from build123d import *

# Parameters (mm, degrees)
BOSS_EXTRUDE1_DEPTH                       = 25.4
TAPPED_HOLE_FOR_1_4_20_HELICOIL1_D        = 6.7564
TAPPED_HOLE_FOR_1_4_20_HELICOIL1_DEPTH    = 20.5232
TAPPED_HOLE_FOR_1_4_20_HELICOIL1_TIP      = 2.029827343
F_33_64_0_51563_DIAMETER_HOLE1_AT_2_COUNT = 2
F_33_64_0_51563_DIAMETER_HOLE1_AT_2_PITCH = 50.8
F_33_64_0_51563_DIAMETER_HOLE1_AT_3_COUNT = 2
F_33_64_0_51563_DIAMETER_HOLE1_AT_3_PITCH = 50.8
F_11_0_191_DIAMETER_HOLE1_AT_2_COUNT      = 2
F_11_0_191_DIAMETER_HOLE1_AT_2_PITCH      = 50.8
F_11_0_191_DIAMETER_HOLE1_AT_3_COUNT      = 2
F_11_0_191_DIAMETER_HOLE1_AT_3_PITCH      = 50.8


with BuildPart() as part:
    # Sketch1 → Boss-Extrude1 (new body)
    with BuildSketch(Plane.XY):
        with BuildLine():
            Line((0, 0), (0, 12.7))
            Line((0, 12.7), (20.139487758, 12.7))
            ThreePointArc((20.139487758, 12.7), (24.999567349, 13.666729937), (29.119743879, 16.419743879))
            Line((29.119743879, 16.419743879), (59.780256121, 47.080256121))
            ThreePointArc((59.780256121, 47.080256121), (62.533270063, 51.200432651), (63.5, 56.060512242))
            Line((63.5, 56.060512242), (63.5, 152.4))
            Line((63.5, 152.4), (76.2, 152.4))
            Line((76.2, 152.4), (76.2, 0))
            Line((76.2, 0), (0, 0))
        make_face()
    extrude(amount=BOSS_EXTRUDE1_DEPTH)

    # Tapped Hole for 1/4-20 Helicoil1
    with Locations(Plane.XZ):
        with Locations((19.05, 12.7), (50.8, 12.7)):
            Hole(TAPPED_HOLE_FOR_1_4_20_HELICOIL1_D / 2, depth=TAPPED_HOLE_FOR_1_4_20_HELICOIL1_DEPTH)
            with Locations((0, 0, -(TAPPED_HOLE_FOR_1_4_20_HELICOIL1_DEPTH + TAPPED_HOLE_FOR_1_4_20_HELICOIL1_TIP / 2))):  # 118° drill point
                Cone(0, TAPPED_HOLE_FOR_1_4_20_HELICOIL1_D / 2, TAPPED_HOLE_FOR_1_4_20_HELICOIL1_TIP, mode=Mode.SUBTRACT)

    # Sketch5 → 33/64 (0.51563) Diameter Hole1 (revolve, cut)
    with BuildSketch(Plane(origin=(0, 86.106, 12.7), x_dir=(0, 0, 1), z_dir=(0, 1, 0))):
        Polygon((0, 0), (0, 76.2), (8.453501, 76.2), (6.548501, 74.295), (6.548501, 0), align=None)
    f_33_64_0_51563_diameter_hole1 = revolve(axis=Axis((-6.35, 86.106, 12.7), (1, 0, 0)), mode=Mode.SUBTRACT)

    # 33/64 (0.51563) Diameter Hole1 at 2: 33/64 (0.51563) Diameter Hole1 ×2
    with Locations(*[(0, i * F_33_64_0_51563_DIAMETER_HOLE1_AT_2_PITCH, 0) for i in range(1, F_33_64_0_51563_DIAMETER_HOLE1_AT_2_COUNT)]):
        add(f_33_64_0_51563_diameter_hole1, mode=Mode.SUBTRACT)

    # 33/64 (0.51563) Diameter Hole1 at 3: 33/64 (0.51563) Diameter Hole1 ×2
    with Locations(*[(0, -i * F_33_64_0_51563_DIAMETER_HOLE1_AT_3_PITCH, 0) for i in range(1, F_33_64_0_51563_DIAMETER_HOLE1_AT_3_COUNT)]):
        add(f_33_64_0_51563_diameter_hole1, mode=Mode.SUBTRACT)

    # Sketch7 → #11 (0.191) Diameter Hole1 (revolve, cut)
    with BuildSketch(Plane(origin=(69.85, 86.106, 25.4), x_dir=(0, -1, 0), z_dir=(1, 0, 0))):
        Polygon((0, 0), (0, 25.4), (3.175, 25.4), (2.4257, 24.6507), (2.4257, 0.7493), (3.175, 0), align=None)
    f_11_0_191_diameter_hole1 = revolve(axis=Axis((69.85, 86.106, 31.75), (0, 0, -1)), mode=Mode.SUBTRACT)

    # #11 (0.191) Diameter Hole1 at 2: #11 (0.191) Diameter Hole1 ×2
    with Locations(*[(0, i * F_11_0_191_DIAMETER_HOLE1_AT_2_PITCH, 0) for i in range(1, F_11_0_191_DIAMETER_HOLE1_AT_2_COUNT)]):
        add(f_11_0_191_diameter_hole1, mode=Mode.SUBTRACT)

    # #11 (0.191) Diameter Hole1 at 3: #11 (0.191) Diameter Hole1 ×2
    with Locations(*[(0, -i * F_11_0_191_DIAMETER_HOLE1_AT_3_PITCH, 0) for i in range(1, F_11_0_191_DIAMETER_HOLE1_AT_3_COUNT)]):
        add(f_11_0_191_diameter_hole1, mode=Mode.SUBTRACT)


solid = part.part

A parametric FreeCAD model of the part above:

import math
import FreeCAD as App
import Part
import Sketcher
Q = App.Units.Quantity

doc = App.newDocument("Part")
params = doc.addObject("Spreadsheet::Sheet", "Params")
for row, (alias, value) in enumerate([
    ("sketch1_radius", "0.5 in"),
    ("sketch1_width", "3 in"),
    ("sketch1_height", "6 in"),
    ("sketch1_width2", "0.5 in"),
    ("pad1_length", "1 in"),
    ("sketch2_diameter", "0.266 in"),
    ("hole_diameter", "0.266 in"),
    ("hole_depth", "0.808 in"),
    ("sketch3_width", "3 in"),
    ("sketch3_width2", "2.925 in"),
    ("groove_angle", "360 deg"),
    ("linearpattern_pitch", "2 in"),
    ("linearpattern2_pitch", "2 in"),
    ("sketch4_height", "1 in"),
    ("sketch4_width", "0.125 in"),
    ("sketch4_height2", "0.941 in"),
    ("groove2_angle", "360 deg"),
    ("linearpattern3_pitch", "2 in"),
    ("linearpattern4_pitch", "2 in"),
], start=1):
    params.set(f"A{row}", alias)
    params.set(f"B{row}", "=" + value)
    params.setAlias(f"B{row}", alias)

body = doc.addObject("PartDesign::Body", "Body")

sketch1 = doc.addObject("Sketcher::SketchObject", "Sketch")
body.addObject(sketch1)
sketch1.AttachmentSupport = (doc.XY_Plane, [""])
sketch1.MapMode = "FlatFace"
sketch1.addGeometry(Part.LineSegment(App.Vector(0, 12.7, 0), App.Vector(0, 0, 0)), False)
sketch1.addGeometry(Part.LineSegment(App.Vector(0, 0, 0), App.Vector(76.2, 0, 0)), False)
sketch1.addGeometry(Part.LineSegment(App.Vector(76.2, 0, 0), App.Vector(76.2, 152.4, 0)), False)
sketch1.addGeometry(Part.LineSegment(App.Vector(76.2, 152.4, 0), App.Vector(63.5, 152.4, 0)), False)
sketch1.addGeometry(Part.LineSegment(App.Vector(63.5, 152.4, 0), App.Vector(63.5, 56.060512, 0)), False)
sketch1.addGeometry(Part.ArcOfCircle(Part.Circle(App.Vector(50.8, 56.060512, 0), App.Vector(0, 0, 1), 12.7), math.radians(-45), math.radians(0)), False)
sketch1.addGeometry(Part.LineSegment(App.Vector(59.780256, 47.080256, 0), App.Vector(29.119744, 16.419744, 0)), False)
sketch1.addGeometry(Part.ArcOfCircle(Part.Circle(App.Vector(20.139488, 25.4, 0), App.Vector(0, 0, 1), 12.7), math.radians(-90), math.radians(-45)), False)
sketch1.addGeometry(Part.LineSegment(App.Vector(20.139488, 12.7, 0), App.Vector(0, 12.7, 0)), False)
sketch1.addConstraint(Sketcher.Constraint("Coincident", 0, 2, 1, 1))
sketch1.addConstraint(Sketcher.Constraint("Coincident", 1, 2, 2, 1))
sketch1.addConstraint(Sketcher.Constraint("Coincident", 2, 2, 3, 1))
sketch1.addConstraint(Sketcher.Constraint("Coincident", 3, 2, 4, 1))
sketch1.addConstraint(Sketcher.Constraint("Tangent", 4, 2, 5, 2))
sketch1.addConstraint(Sketcher.Constraint("Tangent", 5, 1, 6, 1))
sketch1.addConstraint(Sketcher.Constraint("Tangent", 6, 2, 7, 2))
sketch1.addConstraint(Sketcher.Constraint("Tangent", 7, 1, 8, 1))
sketch1.addConstraint(Sketcher.Constraint("Coincident", 8, 2, 0, 1))
sketch1.addConstraint(Sketcher.Constraint("Vertical", 0))
sketch1.addConstraint(Sketcher.Constraint("Horizontal", 1))
sketch1.addConstraint(Sketcher.Constraint("Vertical", 2))
sketch1.addConstraint(Sketcher.Constraint("Horizontal", 3))
sketch1.addConstraint(Sketcher.Constraint("Vertical", 4))
sketch1.addConstraint(Sketcher.Constraint("Horizontal", 8))
sketch1.addConstraint(Sketcher.Constraint("Coincident", 0, 2, -1, 1))
sketch1.addConstraint(Sketcher.Constraint("Equal", 5, 7))
sketch1.addConstraint(Sketcher.Constraint("Equal", 3, 0))
sketch1.addConstraint(Sketcher.Constraint("Radius", 5, Q("0.5 in")))
sketch1.addConstraint(Sketcher.Constraint("DistanceX", 1, 1, 1, 2, Q("3 in")))
sketch1.addConstraint(Sketcher.Constraint("DistanceY", 2, 1, 2, 2, Q("6 in")))
sketch1.addConstraint(Sketcher.Constraint("DistanceX", 3, 2, 3, 1, Q("0.5 in")))
sketch1.addConstraint(Sketcher.Constraint("Angle", 6, Q("-135 deg")))
sketch1.addConstraint(Sketcher.Constraint("DistanceX", 8, 2, 8, 1, Q("20.139488 mm")))
sketch1.setExpression("Constraints[18]", "Params.sketch1_radius")
sketch1.setExpression("Constraints[19]", "Params.sketch1_width")
sketch1.setExpression("Constraints[20]", "Params.sketch1_height")
sketch1.setExpression("Constraints[21]", "Params.sketch1_width2")
pad1 = doc.addObject("PartDesign::Pad", "Pad")
body.addObject(pad1)
pad1.Profile = sketch1
pad1.setExpression("Length", "Params.pad1_length")

sketch2 = doc.addObject("Sketcher::SketchObject", "Sketch001")
body.addObject(sketch2)
sketch2.AttachmentSupport = (doc.XZ_Plane, [""])
sketch2.MapMode = "FlatFace"
sketch2.addGeometry(Part.Circle(App.Vector(19.05, 12.7, 0), App.Vector(0, 0, 1), 3.3782), False)
sketch2.addGeometry(Part.Circle(App.Vector(50.8, 12.7, 0), App.Vector(0, 0, 1), 3.3782), False)
sketch2.addConstraint(Sketcher.Constraint("Equal", 0, 1))
sketch2.addConstraint(Sketcher.Constraint("Horizontal", 0, 3, 1, 3))
sketch2.addConstraint(Sketcher.Constraint("Diameter", 0, Q("0.266 in")))
sketch2.addConstraint(Sketcher.Constraint("DistanceX", -1, 1, 1, 3, Q("2 in")))
sketch2.addConstraint(Sketcher.Constraint("DistanceY", -1, 1, 0, 3, Q("0.5 in")))
sketch2.addConstraint(Sketcher.Constraint("DistanceX", -1, 1, 0, 3, Q("0.75 in")))
sketch2.setExpression("Constraints[2]", "Params.sketch2_diameter")
doc.recompute()
hole = doc.addObject("PartDesign::Hole", "Hole")
body.addObject(hole)
hole.Profile = sketch2
hole.ThreadType = "None"
hole.setExpression("Diameter", "Params.hole_diameter")
hole.DepthType = "Dimension"
hole.setExpression("Depth", "Params.hole_depth")
hole.DrillPoint = "Angled"
hole.DrillPointAngle = 118

sketch3 = doc.addObject("Sketcher::SketchObject", "Sketch002")
body.addObject(sketch3)
sketch3.AttachmentSupport = (doc.XZ_Plane, [""])
sketch3.MapMode = "FlatFace"
sketch3.AttachmentOffset = App.Placement(App.Vector(0, 0, -3.39 * 25.4), App.Rotation())
sketch3.addGeometry(Part.LineSegment(App.Vector(76.2, 12.7, 0), App.Vector(0, 12.7, 0)), False)
sketch3.addGeometry(Part.LineSegment(App.Vector(0, 12.7, 0), App.Vector(0, 19.248501, 0)), False)
sketch3.addGeometry(Part.LineSegment(App.Vector(0, 19.248501, 0), App.Vector(74.295, 19.248501, 0)), False)
sketch3.addGeometry(Part.LineSegment(App.Vector(74.295, 19.248501, 0), App.Vector(76.2, 21.153501, 0)), False)
sketch3.addGeometry(Part.LineSegment(App.Vector(76.2, 21.153501, 0), App.Vector(76.2, 12.7, 0)), False)
sketch3.addGeometry(Part.LineSegment(App.Vector(0, 12.7, 0), App.Vector(76.2, 12.7, 0)), True)
sketch3.addConstraint(Sketcher.Constraint("Coincident", 0, 2, 1, 1))
sketch3.addConstraint(Sketcher.Constraint("Coincident", 1, 2, 2, 1))
sketch3.addConstraint(Sketcher.Constraint("Coincident", 2, 2, 3, 1))
sketch3.addConstraint(Sketcher.Constraint("Coincident", 3, 2, 4, 1))
sketch3.addConstraint(Sketcher.Constraint("Coincident", 4, 2, 0, 1))
sketch3.addConstraint(Sketcher.Constraint("Horizontal", 0))
sketch3.addConstraint(Sketcher.Constraint("Vertical", 1))
sketch3.addConstraint(Sketcher.Constraint("Horizontal", 2))
sketch3.addConstraint(Sketcher.Constraint("Vertical", 4))
sketch3.addConstraint(Sketcher.Constraint("Horizontal", 5))
sketch3.addConstraint(Sketcher.Constraint("Coincident", 5, 1, 0, 2))
sketch3.addConstraint(Sketcher.Constraint("PointOnObject", 0, 2, -2))
sketch3.addConstraint(Sketcher.Constraint("Vertical", 3, 2, 5, 2))
sketch3.addConstraint(Sketcher.Constraint("DistanceX", 0, 2, 0, 1, Q("3 in")))
sketch3.addConstraint(Sketcher.Constraint("Angle", 3, Q("45 deg")))
sketch3.addConstraint(Sketcher.Constraint("DistanceY", -1, 1, 0, 2, Q("0.5 in")))
sketch3.addConstraint(Sketcher.Constraint("DistanceX", 2, 1, 2, 2, Q("2.925 in")))
sketch3.addConstraint(Sketcher.Constraint("DistanceY", 1, 1, 1, 2, Q("6.548501 mm")))
sketch3.setExpression("Constraints[13]", "Params.sketch3_width")
sketch3.setExpression("Constraints[16]", "Params.sketch3_width2")
groove = doc.addObject("PartDesign::Groove", "Groove")
body.addObject(groove)
groove.Profile = sketch3
groove.ReferenceAxis = (sketch3, ["Axis0"])
groove.setExpression("Angle", "Params.groove_angle")
doc.recompute()

linearpattern = doc.addObject("PartDesign::LinearPattern", "LinearPattern")
body.addObject(linearpattern)
linearpattern.Originals = [groove]
linearpattern.Direction = (doc.Y_Axis, [""])
linearpattern.Mode = "offset"
linearpattern.setExpression("Offset", "Params.linearpattern_pitch")
linearpattern.Occurrences = 2
body.Tip = linearpattern
doc.recompute()

linearpattern2 = doc.addObject("PartDesign::LinearPattern", "LinearPattern001")
body.addObject(linearpattern2)
linearpattern2.Originals = [groove]
linearpattern2.Direction = (doc.Y_Axis, [""])
linearpattern2.Mode = "offset"
linearpattern2.setExpression("Offset", "Params.linearpattern2_pitch")
linearpattern2.Occurrences = 2
linearpattern2.Reversed = True
body.Tip = linearpattern2

sketch4 = doc.addObject("Sketcher::SketchObject", "Sketch003")
body.addObject(sketch4)
sketch4.AttachmentSupport = (doc.YZ_Plane, [""])
sketch4.MapMode = "FlatFace"
sketch4.AttachmentOffset = App.Placement(App.Vector(0, 0, 2.75 * 25.4), App.Rotation())
sketch4.addGeometry(Part.LineSegment(App.Vector(86.106, 0, 0), App.Vector(86.106, 25.4, 0)), False)
sketch4.addGeometry(Part.LineSegment(App.Vector(86.106, 25.4, 0), App.Vector(82.931, 25.4, 0)), False)
sketch4.addGeometry(Part.LineSegment(App.Vector(82.931, 25.4, 0), App.Vector(83.6803, 24.6507, 0)), False)
sketch4.addGeometry(Part.LineSegment(App.Vector(83.6803, 24.6507, 0), App.Vector(83.6803, 0.7493, 0)), False)
sketch4.addGeometry(Part.LineSegment(App.Vector(83.6803, 0.7493, 0), App.Vector(82.931, 0, 0)), False)
sketch4.addGeometry(Part.LineSegment(App.Vector(82.931, 0, 0), App.Vector(86.106, 0, 0)), False)
sketch4.addGeometry(Part.LineSegment(App.Vector(86.106, 25.4, 0), App.Vector(86.106, 0, 0)), True)
sketch4.addConstraint(Sketcher.Constraint("Coincident", 0, 2, 1, 1))
sketch4.addConstraint(Sketcher.Constraint("Coincident", 1, 2, 2, 1))
sketch4.addConstraint(Sketcher.Constraint("Coincident", 2, 2, 3, 1))
sketch4.addConstraint(Sketcher.Constraint("Coincident", 3, 2, 4, 1))
sketch4.addConstraint(Sketcher.Constraint("Coincident", 4, 2, 5, 1))
sketch4.addConstraint(Sketcher.Constraint("Coincident", 5, 2, 0, 1))
sketch4.addConstraint(Sketcher.Constraint("Vertical", 0))
sketch4.addConstraint(Sketcher.Constraint("Horizontal", 1))
sketch4.addConstraint(Sketcher.Constraint("Vertical", 3))
sketch4.addConstraint(Sketcher.Constraint("Horizontal", 5))
sketch4.addConstraint(Sketcher.Constraint("Vertical", 6))
sketch4.addConstraint(Sketcher.Constraint("Coincident", 6, 1, 0, 2))
sketch4.addConstraint(Sketcher.Constraint("PointOnObject", 4, 2, -1))
sketch4.addConstraint(Sketcher.Constraint("PointOnObject", 6, 2, -1))
sketch4.addConstraint(Sketcher.Constraint("Perpendicular", 2, 4))
sketch4.addConstraint(Sketcher.Constraint("Vertical", 1, 2, 4, 2))
sketch4.addConstraint(Sketcher.Constraint("Equal", 2, 4))
sketch4.addConstraint(Sketcher.Constraint("DistanceY", 0, 1, 0, 2, Q("1 in")))
sketch4.addConstraint(Sketcher.Constraint("DistanceX", 1, 2, 1, 1, Q("0.125 in")))
sketch4.addConstraint(Sketcher.Constraint("DistanceY", 3, 2, 3, 1, Q("0.941 in")))
sketch4.addConstraint(Sketcher.Constraint("DistanceX", -1, 1, 0, 2, Q("3.39 in")))
sketch4.setExpression("Constraints[17]", "Params.sketch4_height")
sketch4.setExpression("Constraints[18]", "Params.sketch4_width")
sketch4.setExpression("Constraints[19]", "Params.sketch4_height2")
groove2 = doc.addObject("PartDesign::Groove", "Groove001")
body.addObject(groove2)
groove2.Profile = sketch4
groove2.ReferenceAxis = (sketch4, ["Axis0"])
groove2.setExpression("Angle", "Params.groove2_angle")
doc.recompute()

linearpattern3 = doc.addObject("PartDesign::LinearPattern", "LinearPattern002")
body.addObject(linearpattern3)
linearpattern3.Originals = [groove2]
linearpattern3.Direction = (doc.Y_Axis, [""])
linearpattern3.Mode = "offset"
linearpattern3.setExpression("Offset", "Params.linearpattern3_pitch")
linearpattern3.Occurrences = 2
body.Tip = linearpattern3
doc.recompute()

linearpattern4 = doc.addObject("PartDesign::LinearPattern", "LinearPattern003")
body.addObject(linearpattern4)
linearpattern4.Originals = [groove2]
linearpattern4.Direction = (doc.Y_Axis, [""])
linearpattern4.Mode = "offset"
linearpattern4.setExpression("Offset", "Params.linearpattern4_pitch")
linearpattern4.Occurrences = 2
linearpattern4.Reversed = True
body.Tip = linearpattern4

doc.recompute()
